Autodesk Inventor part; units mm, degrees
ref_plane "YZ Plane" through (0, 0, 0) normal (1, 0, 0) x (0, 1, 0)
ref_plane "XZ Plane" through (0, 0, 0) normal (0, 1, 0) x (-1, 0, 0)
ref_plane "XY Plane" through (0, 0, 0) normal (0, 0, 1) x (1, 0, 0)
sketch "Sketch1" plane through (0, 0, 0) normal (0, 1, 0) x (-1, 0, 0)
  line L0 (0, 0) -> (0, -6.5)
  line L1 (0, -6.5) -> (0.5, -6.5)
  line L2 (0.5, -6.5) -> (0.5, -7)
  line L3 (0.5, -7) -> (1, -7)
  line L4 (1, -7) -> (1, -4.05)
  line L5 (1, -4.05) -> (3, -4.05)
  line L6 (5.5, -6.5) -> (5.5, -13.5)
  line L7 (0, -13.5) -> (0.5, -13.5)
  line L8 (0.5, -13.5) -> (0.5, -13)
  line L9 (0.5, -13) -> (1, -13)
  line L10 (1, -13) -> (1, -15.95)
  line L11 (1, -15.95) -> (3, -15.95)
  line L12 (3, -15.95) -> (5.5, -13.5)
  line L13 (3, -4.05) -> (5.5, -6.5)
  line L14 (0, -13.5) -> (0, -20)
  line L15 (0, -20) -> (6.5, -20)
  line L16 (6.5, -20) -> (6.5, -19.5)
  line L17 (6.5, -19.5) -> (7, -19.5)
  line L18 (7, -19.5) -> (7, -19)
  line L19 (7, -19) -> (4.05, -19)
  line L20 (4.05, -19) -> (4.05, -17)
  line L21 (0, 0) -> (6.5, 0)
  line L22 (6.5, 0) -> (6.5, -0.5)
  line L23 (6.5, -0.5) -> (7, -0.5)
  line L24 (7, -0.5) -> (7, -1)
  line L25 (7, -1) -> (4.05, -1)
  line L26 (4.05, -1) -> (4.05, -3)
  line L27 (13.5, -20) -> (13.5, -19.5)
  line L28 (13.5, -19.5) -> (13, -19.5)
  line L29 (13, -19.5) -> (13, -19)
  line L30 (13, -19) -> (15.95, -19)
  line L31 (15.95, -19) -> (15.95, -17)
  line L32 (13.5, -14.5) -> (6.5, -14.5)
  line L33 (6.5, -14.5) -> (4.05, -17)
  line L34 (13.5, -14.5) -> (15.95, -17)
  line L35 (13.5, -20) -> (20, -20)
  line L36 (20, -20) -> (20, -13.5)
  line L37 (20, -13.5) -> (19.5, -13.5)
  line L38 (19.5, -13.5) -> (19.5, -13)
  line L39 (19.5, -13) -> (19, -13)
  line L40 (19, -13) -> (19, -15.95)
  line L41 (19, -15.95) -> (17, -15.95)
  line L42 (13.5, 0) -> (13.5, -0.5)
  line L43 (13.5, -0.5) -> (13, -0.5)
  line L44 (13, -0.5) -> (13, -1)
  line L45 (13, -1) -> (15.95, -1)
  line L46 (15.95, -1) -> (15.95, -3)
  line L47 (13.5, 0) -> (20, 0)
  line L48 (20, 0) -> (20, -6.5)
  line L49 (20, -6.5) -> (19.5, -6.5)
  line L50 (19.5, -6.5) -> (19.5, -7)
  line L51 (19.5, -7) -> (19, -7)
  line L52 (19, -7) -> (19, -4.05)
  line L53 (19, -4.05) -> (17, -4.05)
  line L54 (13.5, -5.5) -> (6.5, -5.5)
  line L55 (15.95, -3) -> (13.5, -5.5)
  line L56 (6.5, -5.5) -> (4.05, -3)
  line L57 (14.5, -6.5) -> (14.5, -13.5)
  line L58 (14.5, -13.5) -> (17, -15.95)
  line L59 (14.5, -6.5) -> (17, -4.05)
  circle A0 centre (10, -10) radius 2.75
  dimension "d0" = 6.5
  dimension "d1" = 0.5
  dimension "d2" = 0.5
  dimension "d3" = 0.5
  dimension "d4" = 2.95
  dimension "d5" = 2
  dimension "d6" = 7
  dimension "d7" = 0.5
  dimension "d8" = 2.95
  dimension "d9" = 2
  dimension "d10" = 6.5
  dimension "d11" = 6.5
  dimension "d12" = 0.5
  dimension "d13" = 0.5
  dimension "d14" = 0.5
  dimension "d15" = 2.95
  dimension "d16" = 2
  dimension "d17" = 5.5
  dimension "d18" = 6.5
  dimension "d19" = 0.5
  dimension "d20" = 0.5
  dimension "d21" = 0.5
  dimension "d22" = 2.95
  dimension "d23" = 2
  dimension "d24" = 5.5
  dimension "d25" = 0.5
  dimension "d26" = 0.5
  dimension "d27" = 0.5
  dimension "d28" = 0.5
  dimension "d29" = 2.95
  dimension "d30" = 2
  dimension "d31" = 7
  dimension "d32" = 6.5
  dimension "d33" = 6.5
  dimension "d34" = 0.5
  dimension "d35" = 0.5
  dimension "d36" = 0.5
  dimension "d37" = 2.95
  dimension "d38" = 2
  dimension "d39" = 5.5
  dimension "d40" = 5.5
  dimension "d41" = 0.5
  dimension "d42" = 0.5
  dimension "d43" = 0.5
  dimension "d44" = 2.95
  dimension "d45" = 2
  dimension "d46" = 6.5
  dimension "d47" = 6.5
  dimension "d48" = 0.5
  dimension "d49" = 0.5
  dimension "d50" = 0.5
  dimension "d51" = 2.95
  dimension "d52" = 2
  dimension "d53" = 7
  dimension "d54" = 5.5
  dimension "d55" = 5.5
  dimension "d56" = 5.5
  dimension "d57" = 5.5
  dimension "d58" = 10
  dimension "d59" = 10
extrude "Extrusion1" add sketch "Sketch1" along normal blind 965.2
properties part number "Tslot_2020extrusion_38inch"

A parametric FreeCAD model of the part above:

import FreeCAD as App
import Part
import Sketcher
from FreeCAD import Vector
Q = App.Units.Quantity

doc = App.newDocument("Part")
body = doc.addObject("PartDesign::Body", "Body")

sketch1 = body.newObject("Sketcher::SketchObject", "Sketch")
sketch1.AttachmentSupport = (doc.getObject("XZ_Plane"), [""])
sketch1.MapMode = "FlatFace"
sketch1.addGeometry([
    Part.LineSegment(Vector(-6.5, 0, 0), Vector(0, 0, 0)),
    Part.LineSegment(Vector(0, 0, 0), Vector(0, -6.5, 0)),
    Part.LineSegment(Vector(0, -6.5, 0), Vector(-0.5, -6.5, 0)),
    Part.LineSegment(Vector(-0.5, -6.5, 0), Vector(-0.5, -7, 0)),
    Part.LineSegment(Vector(-0.5, -7, 0), Vector(-1, -7, 0)),
    Part.LineSegment(Vector(-1, -7, 0), Vector(-1, -4.05, 0)),
    Part.LineSegment(Vector(-1, -4.05, 0), Vector(-3, -4.05, 0)),
    Part.LineSegment(Vector(-3, -4.05, 0), Vector(-5.5, -6.5, 0)),
    Part.LineSegment(Vector(-5.5, -6.5, 0), Vector(-5.5, -13.5, 0)),
    Part.LineSegment(Vector(-5.5, -13.5, 0), Vector(-3, -15.95, 0)),
    Part.LineSegment(Vector(-3, -15.95, 0), Vector(-1, -15.95, 0)),
    Part.LineSegment(Vector(-1, -15.95, 0), Vector(-1, -13, 0)),
    Part.LineSegment(Vector(-1, -13, 0), Vector(-0.5, -13, 0)),
    Part.LineSegment(Vector(-0.5, -13, 0), Vector(-0.5, -13.5, 0)),
    Part.LineSegment(Vector(-0.5, -13.5, 0), Vector(0, -13.5, 0)),
    Part.LineSegment(Vector(0, -13.5, 0), Vector(0, -20, 0)),
    Part.LineSegment(Vector(0, -20, 0), Vector(-6.5, -20, 0)),
    Part.LineSegment(Vector(-6.5, -20, 0), Vector(-6.5, -19.5, 0)),
    Part.LineSegment(Vector(-6.5, -19.5, 0), Vector(-7, -19.5, 0)),
    Part.LineSegment(Vector(-7, -19.5, 0), Vector(-7, -19, 0)),
    Part.LineSegment(Vector(-7, -19, 0), Vector(-4.05, -19, 0)),
    Part.LineSegment(Vector(-4.05, -19, 0), Vector(-4.05, -17, 0)),
    Part.LineSegment(Vector(-4.05, -17, 0), Vector(-6.5, -14.5, 0)),
    Part.LineSegment(Vector(-6.5, -14.5, 0), Vector(-13.5, -14.5, 0)),
    Part.LineSegment(Vector(-13.5, -14.5, 0), Vector(-15.95, -17, 0)),
    Part.LineSegment(Vector(-15.95, -17, 0), Vector(-15.95, -19, 0)),
    Part.LineSegment(Vector(-15.95, -19, 0), Vector(-13, -19, 0)),
    Part.LineSegment(Vector(-13, -19, 0), Vector(-13, -19.5, 0)),
    Part.LineSegment(Vector(-13, -19.5, 0), Vector(-13.5, -19.5, 0)),
    Part.LineSegment(Vector(-13.5, -19.5, 0), Vector(-13.5, -20, 0)),
    Part.LineSegment(Vector(-13.5, -20, 0), Vector(-20, -20, 0)),
    Part.LineSegment(Vector(-20, -20, 0), Vector(-20, -13.5, 0)),
    Part.LineSegment(Vector(-20, -13.5, 0), Vector(-19.5, -13.5, 0)),
    Part.LineSegment(Vector(-19.5, -13.5, 0), Vector(-19.5, -13, 0)),
    Part.LineSegment(Vector(-19.5, -13, 0), Vector(-19, -13, 0)),
    Part.LineSegment(Vector(-19, -13, 0), Vector(-19, -15.95, 0)),
    Part.LineSegment(Vector(-19, -15.95, 0), Vector(-17, -15.95, 0)),
    Part.LineSegment(Vector(-17, -15.95, 0), Vector(-14.5, -13.5, 0)),
    Part.LineSegment(Vector(-14.5, -13.5, 0), Vector(-14.5, -6.5, 0)),
    Part.LineSegment(Vector(-14.5, -6.5, 0), Vector(-17, -4.05, 0)),
    Part.LineSegment(Vector(-17, -4.05, 0), Vector(-19, -4.05, 0)),
    Part.LineSegment(Vector(-19, -4.05, 0), Vector(-19, -7, 0)),
    Part.LineSegment(Vector(-19, -7, 0), Vector(-19.5, -7, 0)),
    Part.LineSegment(Vector(-19.5, -7, 0), Vector(-19.5, -6.5, 0)),
    Part.LineSegment(Vector(-19.5, -6.5, 0), Vector(-20, -6.5, 0)),
    Part.LineSegment(Vector(-20, -6.5, 0), Vector(-20, 0, 0)),
    Part.LineSegment(Vector(-20, 0, 0), Vector(-13.5, 0, 0)),
    Part.LineSegment(Vector(-13.5, 0, 0), Vector(-13.5, -0.5, 0)),
    Part.LineSegment(Vector(-13.5, -0.5, 0), Vector(-13, -0.5, 0)),
    Part.LineSegment(Vector(-13, -0.5, 0), Vector(-13, -1, 0)),
    Part.LineSegment(Vector(-13, -1, 0), Vector(-15.95, -1, 0)),
    Part.LineSegment(Vector(-15.95, -1, 0), Vector(-15.95, -3, 0)),
    Part.LineSegment(Vector(-15.95, -3, 0), Vector(-13.5, -5.5, 0)),
    Part.LineSegment(Vector(-13.5, -5.5, 0), Vector(-6.5, -5.5, 0)),
    Part.LineSegment(Vector(-6.5, -5.5, 0), Vector(-4.05, -3, 0)),
    Part.LineSegment(Vector(-4.05, -3, 0), Vector(-4.05, -1, 0)),
    Part.LineSegment(Vector(-4.05, -1, 0), Vector(-7, -1, 0)),
    Part.LineSegment(Vector(-7, -1, 0), Vector(-7, -0.5, 0)),
    Part.LineSegment(Vector(-7, -0.5, 0), Vector(-6.5, -0.5, 0)),
    Part.LineSegment(Vector(-6.5, -0.5, 0), Vector(-6.5, 0, 0)),
    Part.Circle(Vector(-10, -10, 0), Vector(0, 0, 1), 2.75),
], False)
sketch1.addConstraint([
    Sketcher.Constraint("Coincident", 0, 2, 1, 1),
    Sketcher.Constraint("Coincident", 1, 2, 2, 1),
    Sketcher.Constraint("Coincident", 2, 2, 3, 1),
    Sketcher.Constraint("Coincident", 3, 2, 4, 1),
    Sketcher.Constraint("Coincident", 4, 2, 5, 1),
    Sketcher.Constraint("Coincident", 5, 2, 6, 1),
    Sketcher.Constraint("Coincident", 6, 2, 7, 1),
    Sketcher.Constraint("Coincident", 7, 2, 8, 1),
    Sketcher.Constraint("Coincident", 8, 2, 9, 1),
    Sketcher.Constraint("Coincident", 9, 2, 10, 1),
    Sketcher.Constraint("Coincident", 10, 2, 11, 1),
    Sketcher.Constraint("Coincident", 11, 2, 12, 1),
    Sketcher.Constraint("Coincident", 12, 2, 13, 1),
    Sketcher.Constraint("Coincident", 13, 2, 14, 1),
    Sketcher.Constraint("Coincident", 14, 2, 15, 1),
    Sketcher.Constraint("Coincident", 15, 2, 16, 1),
    Sketcher.Constraint("Coincident", 16, 2, 17, 1),
    Sketcher.Constraint("Coincident", 17, 2, 18, 1),
    Sketcher.Constraint("Coincident", 18, 2, 19, 1),
    Sketcher.Constraint("Coincident", 19, 2, 20, 1),
    Sketcher.Constraint("Coincident", 20, 2, 21, 1),
    Sketcher.Constraint("Coincident", 21, 2, 22, 1),
    Sketcher.Constraint("Coincident", 22, 2, 23, 1),
    Sketcher.Constraint("Coincident", 23, 2, 24, 1),
    Sketcher.Constraint("Coincident", 24, 2, 25, 1),
    Sketcher.Constraint("Coincident", 25, 2, 26, 1),
    Sketcher.Constraint("Coincident", 26, 2, 27, 1),
    Sketcher.Constraint("Coincident", 27, 2, 28, 1),
    Sketcher.Constraint("Coincident", 28, 2, 29, 1),
    Sketcher.Constraint("Coincident", 29, 2, 30, 1),
    Sketcher.Constraint("Coincident", 30, 2, 31, 1),
    Sketcher.Constraint("Coincident", 31, 2, 32, 1),
    Sketcher.Constraint("Coincident", 32, 2, 33, 1),
    Sketcher.Constraint("Coincident", 33, 2, 34, 1),
    Sketcher.Constraint("Coincident", 34, 2, 35, 1),
    Sketcher.Constraint("Coincident", 35, 2, 36, 1),
    Sketcher.Constraint("Coincident", 36, 2, 37, 1),
    Sketcher.Constraint("Coincident", 37, 2, 38, 1),
    Sketcher.Constraint("Coincident", 38, 2, 39, 1),
    Sketcher.Constraint("Coincident", 39, 2, 40, 1),
    Sketcher.Constraint("Coincident", 40, 2, 41, 1),
    Sketcher.Constraint("Coincident", 41, 2, 42, 1),
    Sketcher.Constraint("Coincident", 42, 2, 43, 1),
    Sketcher.Constraint("Coincident", 43, 2, 44, 1),
    Sketcher.Constraint("Coincident", 44, 2, 45, 1),
    Sketcher.Constraint("Coincident", 45, 2, 46, 1),
    Sketcher.Constraint("Coincident", 46, 2, 47, 1),
    Sketcher.Constraint("Coincident", 47, 2, 48, 1),
    Sketcher.Constraint("Coincident", 48, 2, 49, 1),
    Sketcher.Constraint("Coincident", 49, 2, 50, 1),
    Sketcher.Constraint("Coincident", 50, 2, 51, 1),
    Sketcher.Constraint("Coincident", 51, 2, 52, 1),
    Sketcher.Constraint("Coincident", 52, 2, 53, 1),
    Sketcher.Constraint("Coincident", 53, 2, 54, 1),
    Sketcher.Constraint("Coincident", 54, 2, 55, 1),
    Sketcher.Constraint("Coincident", 55, 2, 56, 1),
    Sketcher.Constraint("Coincident", 56, 2, 57, 1),
    Sketcher.Constraint("Coincident", 57, 2, 58, 1),
    Sketcher.Constraint("Coincident", 58, 2, 59, 1),
    Sketcher.Constraint("Coincident", 59, 2, 0, 1),
    Sketcher.Constraint("Horizontal", 0),
    Sketcher.Constraint("Vertical", 1),
    Sketcher.Constraint("Horizontal", 2),
    Sketcher.Constraint("Vertical", 3),
    Sketcher.Constraint("Horizontal", 4),
    Sketcher.Constraint("Vertical", 5),
    Sketcher.Constraint("Horizontal", 6),
    Sketcher.Constraint("Vertical", 8),
    Sketcher.Constraint("Horizontal", 10),
    Sketcher.Constraint("Vertical", 11),
    Sketcher.Constraint("Horizontal", 12),
    Sketcher.Constraint("Vertical", 13),
    Sketcher.Constraint("Horizontal", 14),
    Sketcher.Constraint("Vertical", 15),
    Sketcher.Constraint("Horizontal", 16),
    Sketcher.Constraint("Vertical", 17),
    Sketcher.Constraint("Horizontal", 18),
    Sketcher.Constraint("Vertical", 19),
    Sketcher.Constraint("Horizontal", 20),
    Sketcher.Constraint("Vertical", 21),
    Sketcher.Constraint("Horizontal", 23),
    Sketcher.Constraint("Vertical", 25),
    Sketcher.Constraint("Horizontal", 26),
    Sketcher.Constraint("Vertical", 27),
    Sketcher.Constraint("Horizontal", 28),
    Sketcher.Constraint("Vertical", 29),
    Sketcher.Constraint("Horizontal", 30),
    Sketcher.Constraint("Vertical", 31),
    Sketcher.Constraint("Horizontal", 32),
    Sketcher.Constraint("Vertical", 33),
    Sketcher.Constraint("Horizontal", 34),
    Sketcher.Constraint("Vertical", 35),
    Sketcher.Constraint("Horizontal", 36),
    Sketcher.Constraint("Vertical", 38),
    Sketcher.Constraint("Horizontal", 40),
    Sketcher.Constraint("Vertical", 41),
    Sketcher.Constraint("Horizontal", 42),
    Sketcher.Constraint("Vertical", 43),
    Sketcher.Constraint("Horizontal", 44),
    Sketcher.Constraint("Vertical", 45),
    Sketcher.Constraint("Horizontal", 46),
    Sketcher.Constraint("Vertical", 47),
    Sketcher.Constraint("Horizontal", 48),
    Sketcher.Constraint("Vertical", 49),
    Sketcher.Constraint("Horizontal", 50),
    Sketcher.Constraint("Vertical", 51),
    Sketcher.Constraint("Horizontal", 53),
    Sketcher.Constraint("Vertical", 55),
    Sketcher.Constraint("Horizontal", 56),
    Sketcher.Constraint("Vertical", 57),
    Sketcher.Constraint("Horizontal", 58),
    Sketcher.Constraint("Vertical", 59),
    Sketcher.Constraint("Coincident", 0, 2, -1, 1),
    Sketcher.Constraint("PointOnObject", 14, 2, -2),
    Sketcher.Constraint("PointOnObject", 45, 2, -1),
    Sketcher.Constraint("Perpendicular", 7, 22),
    Sketcher.Constraint("Perpendicular", 9, 24),
    Sketcher.Constraint("Perpendicular", 22, 37),
    Sketcher.Constraint("Perpendicular", 24, 39),
    Sketcher.Constraint("Perpendicular", 37, 52),
    Sketcher.Constraint("Perpendicular", 39, 54),
    Sketcher.Constraint("Horizontal", 2, 2, 7, 2),
    Sketcher.Constraint("Horizontal", 8, 2, 13, 2),
    Sketcher.Constraint("Horizontal", 21, 2, 24, 2),
    Sketcher.Constraint("Horizontal", 20, 2, 25, 2),
    Sketcher.Constraint("Horizontal", 18, 2, 27, 2),
    Sketcher.Constraint("Horizontal", 16, 2, 29, 2),
    Sketcher.Constraint("Horizontal", 14, 2, 31, 2),
    Sketcher.Constraint("Horizontal", 12, 2, 33, 2),
    Sketcher.Constraint("Horizontal", 10, 2, 35, 2),
    Sketcher.Constraint("Horizontal", 32, 2, 37, 2),
    Sketcher.Constraint("Horizontal", 7, 2, 38, 2),
    Sketcher.Constraint("Horizontal", 6, 2, 39, 2),
    Sketcher.Constraint("Horizontal", 4, 2, 41, 2),
    Sketcher.Constraint("Horizontal", 38, 2, 43, 2),
    Sketcher.Constraint("Horizontal", 51, 2, 54, 2),
    Sketcher.Constraint("Horizontal", 50, 2, 55, 2),
    Sketcher.Constraint("Horizontal", 48, 2, 57, 2),
    Sketcher.Constraint("Vertical", 6, 2, 9, 2),
    Sketcher.Constraint("Vertical", 5, 2, 10, 2),
    Sketcher.Constraint("Vertical", 3, 2, 12, 2),
    Sketcher.Constraint("Vertical", 17, 2, 22, 2),
    Sketcher.Constraint("Vertical", 23, 2, 28, 2),
    Sketcher.Constraint("Vertical", 36, 2, 39, 2),
    Sketcher.Constraint("Vertical", 35, 2, 40, 2),
    Sketcher.Constraint("Vertical", 33, 2, 42, 2),
    Sketcher.Constraint("Vertical", 31, 2, 44, 2),
    Sketcher.Constraint("Vertical", 29, 2, 46, 2),
    Sketcher.Constraint("Vertical", 27, 2, 48, 2),
    Sketcher.Constraint("Vertical", 25, 2, 50, 2),
    Sketcher.Constraint("Vertical", 47, 2, 52, 2),
    Sketcher.Constraint("Vertical", 22, 2, 53, 2),
    Sketcher.Constraint("Vertical", 19, 2, 56, 2),
    Sketcher.Constraint("Vertical", 53, 2, 58, 2),
    Sketcher.Constraint("Equal", 2, 4),
    Sketcher.Constraint("Equal", 14, 18),
    Sketcher.Constraint("Equal", 20, 26),
    Sketcher.Constraint("Equal", 16, 30),
    Sketcher.Constraint("Equal", 28, 32),
    Sketcher.Constraint("Equal", 32, 34),
    Sketcher.Constraint("Equal", 10, 36),
    Sketcher.Constraint("Equal", 46, 1),
    Sketcher.Constraint("Equal", 58, 3),
    Sketcher.Constraint("Equal", 56, 5),
    Sketcher.Constraint("Equal", 53, 8),
    Sketcher.Constraint("Equal", 5, 11),
    Sketcher.Constraint("Equal", 1, 15),
    Sketcher.Constraint("Equal", 13, 17),
    Sketcher.Constraint("Equal", 17, 19),
    Sketcher.Constraint("Equal", 40, 21),
    Sketcher.Constraint("Equal", 43, 47),
    Sketcher.Constraint("Equal", 47, 49),
    Sketcher.Constraint("Equal", 25, 51),
    Sketcher.Constraint("Diameter", 60, Q("5.5 mm")),
    Sketcher.Constraint("DistanceX", 6, 2, 6, 1, Q("2 mm")),
    Sketcher.Constraint("DistanceX", 23, 2, 23, 1, Q("7 mm")),
    Sketcher.Constraint("DistanceX", 0, 1, 0, 2, Q("6.5 mm")),
    Sketcher.Constraint("DistanceX", 2, 2, 2, 1, Q("0.5 mm")),
    Sketcher.Constraint("DistanceX", 60, 3, -1, 1, Q("10 mm")),
    Sketcher.Constraint("DistanceY", 60, 3, -1, 1, Q("10 mm")),
    Sketcher.Constraint("DistanceX", 20, 1, 20, 2, Q("2.95 mm")),
    Sketcher.Constraint("DistanceX", 7, 2, -1, 1, Q("5.5 mm")),
])
pad1 = body.newObject("PartDesign::Pad", "Pad")
pad1.Profile = sketch1
pad1.Length = 965.2
pad1.Reversed = True

doc.recompute()
